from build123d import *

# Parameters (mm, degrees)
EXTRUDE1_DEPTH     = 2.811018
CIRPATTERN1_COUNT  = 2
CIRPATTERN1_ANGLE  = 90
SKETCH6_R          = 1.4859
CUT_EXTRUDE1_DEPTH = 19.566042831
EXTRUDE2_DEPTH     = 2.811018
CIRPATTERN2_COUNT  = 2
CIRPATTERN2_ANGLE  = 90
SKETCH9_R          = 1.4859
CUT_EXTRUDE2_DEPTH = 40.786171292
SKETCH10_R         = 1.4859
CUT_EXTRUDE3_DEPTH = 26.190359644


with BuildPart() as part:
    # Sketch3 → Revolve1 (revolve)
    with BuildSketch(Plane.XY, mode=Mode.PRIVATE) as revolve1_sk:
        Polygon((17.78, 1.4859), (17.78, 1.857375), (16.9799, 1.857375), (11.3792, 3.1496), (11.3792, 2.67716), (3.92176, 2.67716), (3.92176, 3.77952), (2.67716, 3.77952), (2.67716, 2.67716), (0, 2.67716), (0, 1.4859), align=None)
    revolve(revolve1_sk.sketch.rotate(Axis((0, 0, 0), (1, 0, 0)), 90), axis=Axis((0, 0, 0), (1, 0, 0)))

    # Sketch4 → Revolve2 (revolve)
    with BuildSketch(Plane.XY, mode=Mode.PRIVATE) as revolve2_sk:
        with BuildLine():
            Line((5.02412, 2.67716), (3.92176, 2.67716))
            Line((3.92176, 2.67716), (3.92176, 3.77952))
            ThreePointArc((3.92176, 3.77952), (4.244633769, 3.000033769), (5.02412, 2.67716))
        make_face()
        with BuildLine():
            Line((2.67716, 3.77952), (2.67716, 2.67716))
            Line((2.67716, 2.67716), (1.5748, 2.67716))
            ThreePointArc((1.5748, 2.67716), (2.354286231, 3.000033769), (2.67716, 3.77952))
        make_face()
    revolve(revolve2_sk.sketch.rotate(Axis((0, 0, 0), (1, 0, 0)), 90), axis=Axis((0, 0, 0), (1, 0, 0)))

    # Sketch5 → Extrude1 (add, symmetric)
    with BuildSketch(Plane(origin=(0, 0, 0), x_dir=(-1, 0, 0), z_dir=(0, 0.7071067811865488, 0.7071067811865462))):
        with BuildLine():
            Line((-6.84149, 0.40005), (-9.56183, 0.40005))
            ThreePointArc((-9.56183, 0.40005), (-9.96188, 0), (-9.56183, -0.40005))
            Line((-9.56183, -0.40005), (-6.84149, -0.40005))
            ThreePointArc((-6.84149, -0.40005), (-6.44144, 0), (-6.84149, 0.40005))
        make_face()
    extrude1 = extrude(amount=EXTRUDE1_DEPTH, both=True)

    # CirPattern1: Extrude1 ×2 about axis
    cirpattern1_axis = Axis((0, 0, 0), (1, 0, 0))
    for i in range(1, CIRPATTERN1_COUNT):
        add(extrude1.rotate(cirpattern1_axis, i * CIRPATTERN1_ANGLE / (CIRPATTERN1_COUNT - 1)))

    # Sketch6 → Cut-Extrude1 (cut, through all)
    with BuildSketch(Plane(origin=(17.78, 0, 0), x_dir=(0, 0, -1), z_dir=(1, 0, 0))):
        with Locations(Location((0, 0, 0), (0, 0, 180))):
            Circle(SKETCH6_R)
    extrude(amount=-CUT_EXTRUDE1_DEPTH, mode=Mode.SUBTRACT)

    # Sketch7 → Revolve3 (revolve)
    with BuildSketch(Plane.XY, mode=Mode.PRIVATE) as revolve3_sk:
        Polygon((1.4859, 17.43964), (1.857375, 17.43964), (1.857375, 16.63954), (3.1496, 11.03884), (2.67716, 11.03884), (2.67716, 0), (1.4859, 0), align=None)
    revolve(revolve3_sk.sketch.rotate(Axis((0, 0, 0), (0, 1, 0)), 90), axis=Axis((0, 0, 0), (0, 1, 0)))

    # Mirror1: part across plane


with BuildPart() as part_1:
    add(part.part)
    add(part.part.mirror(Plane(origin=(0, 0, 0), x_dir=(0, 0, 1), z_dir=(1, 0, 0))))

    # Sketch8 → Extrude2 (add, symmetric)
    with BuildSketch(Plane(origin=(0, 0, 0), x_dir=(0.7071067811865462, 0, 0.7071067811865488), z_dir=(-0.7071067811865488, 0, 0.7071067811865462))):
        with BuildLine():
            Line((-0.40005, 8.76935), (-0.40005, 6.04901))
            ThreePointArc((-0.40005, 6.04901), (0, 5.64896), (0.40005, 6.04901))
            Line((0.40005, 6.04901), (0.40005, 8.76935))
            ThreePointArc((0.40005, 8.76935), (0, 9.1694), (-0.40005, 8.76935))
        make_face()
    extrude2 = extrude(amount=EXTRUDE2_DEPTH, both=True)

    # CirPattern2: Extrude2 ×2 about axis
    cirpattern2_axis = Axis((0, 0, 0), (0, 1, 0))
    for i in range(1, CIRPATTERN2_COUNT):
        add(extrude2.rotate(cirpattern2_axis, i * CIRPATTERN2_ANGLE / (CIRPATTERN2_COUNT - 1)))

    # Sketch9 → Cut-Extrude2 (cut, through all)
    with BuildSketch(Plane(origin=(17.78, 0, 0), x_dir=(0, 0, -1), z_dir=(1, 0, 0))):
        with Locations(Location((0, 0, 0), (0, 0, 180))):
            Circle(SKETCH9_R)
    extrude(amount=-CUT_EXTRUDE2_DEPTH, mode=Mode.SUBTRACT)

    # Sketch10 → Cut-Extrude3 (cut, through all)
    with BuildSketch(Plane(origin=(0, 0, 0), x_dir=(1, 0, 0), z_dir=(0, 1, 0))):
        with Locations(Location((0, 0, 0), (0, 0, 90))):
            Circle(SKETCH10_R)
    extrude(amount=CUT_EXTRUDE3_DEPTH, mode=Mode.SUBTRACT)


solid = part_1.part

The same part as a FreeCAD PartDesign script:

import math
import FreeCAD as App
import Part
import Sketcher
Q = App.Units.Quantity

doc = App.newDocument("Part")
body = doc.addObject("PartDesign::Body", "Body")

# Sketch on XY plane
sketch1 = doc.addObject("Sketcher::SketchObject", "Sketch")
body.addObject(sketch1)
sketch1.AttachmentSupport = (doc.XY_Plane, [""])
sketch1.MapMode = "FlatFace"
sketch1.addGeometry([
    Part.LineSegment(App.Vector(17.78, 1.4859, 0), App.Vector(17.78, 1.857375, 0)),  # 0
    Part.LineSegment(App.Vector(17.78, 1.857375, 0), App.Vector(16.9799, 1.857375, 0)),  # 1
    Part.LineSegment(App.Vector(16.9799, 1.857375, 0), App.Vector(11.3792, 3.1496, 0)),  # 2
    Part.LineSegment(App.Vector(11.3792, 3.1496, 0), App.Vector(11.3792, 2.67716, 0)),  # 3
    Part.LineSegment(App.Vector(11.3792, 2.67716, 0), App.Vector(3.92176, 2.67716, 0)),  # 4
    Part.LineSegment(App.Vector(3.92176, 2.67716, 0), App.Vector(3.92176, 3.77952, 0)),  # 5
    Part.LineSegment(App.Vector(3.92176, 3.77952, 0), App.Vector(2.67716, 3.77952, 0)),  # 6
    Part.LineSegment(App.Vector(2.67716, 3.77952, 0), App.Vector(2.67716, 2.67716, 0)),  # 7
    Part.LineSegment(App.Vector(2.67716, 2.67716, 0), App.Vector(0, 2.67716, 0)),  # 8
    Part.LineSegment(App.Vector(0, 2.67716, 0), App.Vector(0, 1.4859, 0)),  # 9
    Part.LineSegment(App.Vector(0, 1.4859, 0), App.Vector(17.78, 1.4859, 0)),  # 10
], False)
sketch1.addConstraint([
    Sketcher.Constraint("Coincident", 0, 2, 1, 1),
    Sketcher.Constraint("Coincident", 1, 2, 2, 1),
    Sketcher.Constraint("Coincident", 2, 2, 3, 1),
    Sketcher.Constraint("Coincident", 3, 2, 4, 1),
    Sketcher.Constraint("Coincident", 4, 2, 5, 1),
    Sketcher.Constraint("Coincident", 5, 2, 6, 1),
    Sketcher.Constraint("Coincident", 6, 2, 7, 1),
    Sketcher.Constraint("Coincident", 7, 2, 8, 1),
    Sketcher.Constraint("Coincident", 8, 2, 9, 1),
    Sketcher.Constraint("Coincident", 9, 2, 10, 1),
    Sketcher.Constraint("Coincident", 10, 2, 0, 1),
    Sketcher.Constraint("Vertical", 0),
    Sketcher.Constraint("Horizontal", 1),
    Sketcher.Constraint("Vertical", 3),
    Sketcher.Constraint("Horizontal", 4),
    Sketcher.Constraint("Vertical", 5),
    Sketcher.Constraint("Horizontal", 6),
    Sketcher.Constraint("Vertical", 7),
    Sketcher.Constraint("Horizontal", 8),
    Sketcher.Constraint("Vertical", 9),
    Sketcher.Constraint("Horizontal", 10),
    Sketcher.Constraint("PointOnObject", 8, 2, -2),
    Sketcher.Constraint("Horizontal", 4, 2, 7, 2),
    Sketcher.Constraint("DistanceX", 10, 1, 10, 2, Q("0.7 in")),
    Sketcher.Constraint("DistanceX", 6, 2, 6, 1, Q("0.049 in")),
    Sketcher.Constraint("DistanceX", 1, 2, 1, 1, Q("0.0315 in")),
    Sketcher.Constraint("DistanceX", 4, 2, 4, 1, Q("0.2936 in")),
    Sketcher.Constraint("DistanceX", 8, 2, 8, 1, Q("0.1054 in")),
    Sketcher.Constraint("DistanceY", 3, 2, 3, 1, Q("0.0186 in")),
    Sketcher.Constraint("DistanceY", 5, 1, 5, 2, Q("0.0434 in")),
    Sketcher.Constraint("DistanceY", 9, 2, 9, 1, Q("0.0469 in")),
    Sketcher.Constraint("DistanceY", -1, 1, 2, 2, Q("0.124 in")),
    Sketcher.Constraint("Distance", 2, Q("5.747842 mm")),
])
revolution = doc.addObject("PartDesign::Revolution", "Revolution")
body.addObject(revolution)
revolution.Profile = sketch1
revolution.ReferenceAxis = (sketch1, ["H_Axis"])
revolution.Angle = 360

# Sketch on XY plane
sketch2 = doc.addObject("Sketcher::SketchObject", "Sketch001")
body.addObject(sketch2)
sketch2.AttachmentSupport = (doc.XY_Plane, [""])
sketch2.MapMode = "FlatFace"
sketch2.addGeometry([
    Part.LineSegment(App.Vector(3.92176, 2.67716, 0), App.Vector(5.02412, 2.67716, 0)),  # 0
    Part.ArcOfCircle(Part.Circle(App.Vector(5.02412, 3.77952, 0), App.Vector(0, 0, 1), 1.10236), math.radians(-180), math.radians(-90)),  # 1
    Part.LineSegment(App.Vector(3.92176, 3.77952, 0), App.Vector(3.92176, 2.67716, 0)),  # 2
    Part.LineSegment(App.Vector(2.67716, 2.67716, 0), App.Vector(2.67716, 3.77952, 0)),  # 3
    Part.ArcOfCircle(Part.Circle(App.Vector(1.5748, 3.77952, 0), App.Vector(0, 0, 1), 1.10236), math.radians(-90), math.radians(0)),  # 4
    Part.LineSegment(App.Vector(1.5748, 2.67716, 0), App.Vector(2.67716, 2.67716, 0)),  # 5
], False)
sketch2.addConstraint([
    Sketcher.Constraint("Tangent", 0, 2, 1, 2),
    Sketcher.Constraint("Tangent", 1, 1, 2, 1),
    Sketcher.Constraint("Coincident", 2, 2, 0, 1),
    Sketcher.Constraint("Tangent", 3, 2, 4, 2),
    Sketcher.Constraint("Tangent", 4, 1, 5, 1),
    Sketcher.Constraint("Coincident", 5, 2, 3, 1),
    Sketcher.Constraint("Horizontal", 0),
    Sketcher.Constraint("Vertical", 2),
    Sketcher.Constraint("Vertical", 3),
    Sketcher.Constraint("Horizontal", 5),
    Sketcher.Constraint("Equal", 1, 4),
    Sketcher.Constraint("Horizontal", 1, 3, 4, 3),
    Sketcher.Constraint("Radius", 1, Q("0.0434 in")),
    Sketcher.Constraint("DistanceX", -1, 1, 4, 3, Q("0.062 in")),
    Sketcher.Constraint("DistanceX", 3, 2, 1, 1, Q("0.049 in")),
    Sketcher.Constraint("DistanceY", -1, 1, 1, 3, Q("0.1488 in")),
])
revolution2 = doc.addObject("PartDesign::Revolution", "Revolution001")
body.addObject(revolution2)
revolution2.Profile = sketch2
revolution2.ReferenceAxis = (sketch2, ["H_Axis"])
revolution2.Angle = 360

# Sketch on an angled plane
sketch3 = doc.addObject("Sketcher::SketchObject", "Sketch002")
body.addObject(sketch3)
sketch3.Placement = App.Placement(App.Vector(0, 0, 0), App.Rotation(App.Vector(-1, 0, 0), App.Vector(0, -0.707106781, 0.707106781), App.Vector(0, 0.707106781, 0.707106781), "ZXY"))
sketch3.addGeometry([
    Part.LineSegment(App.Vector(-6.84149, 0.40005, 0), App.Vector(-9.56183, 0.40005, 0)),
    Part.ArcOfCircle(Part.Circle(App.Vector(-9.56183, 0, 0), App.Vector(0, 0, 1), 0.40005), math.radians(90), math.radians(270)),
    Part.LineSegment(App.Vector(-9.56183, -0.40005, 0), App.Vector(-6.84149, -0.40005, 0)),
    Part.ArcOfCircle(Part.Circle(App.Vector(-6.84149, 0, 0), App.Vector(0, 0, 1), 0.40005), math.radians(-90), math.radians(90)),
], False)
sketch3.addConstraint([
    Sketcher.Constraint("Tangent", 0, 2, 1, 1),
    Sketcher.Constraint("Tangent", 1, 2, 2, 1),
    Sketcher.Constraint("Tangent", 2, 2, 3, 1),
    Sketcher.Constraint("Tangent", 3, 2, 0, 1),
    Sketcher.Constraint("Horizontal", 0),
    Sketcher.Constraint("Horizontal", 2),
    Sketcher.Constraint("PointOnObject", 1, 3, -1),
    Sketcher.Constraint("DistanceX", 0, 2, 0, 1, Q("0.1071 in")),
    Sketcher.Constraint("Radius", 1, Q("0.40005 mm")),
    Sketcher.Constraint("DistanceX", 1, 3, -1, 1, Q("9.56183 mm")),
])
pad1 = doc.addObject("PartDesign::Pad", "Pad")
body.addObject(pad1)
pad1.Profile = sketch3
pad1.Length = 5.622036
pad1.Midplane = True
doc.recompute()

polarpattern = doc.addObject("PartDesign::PolarPattern", "PolarPattern")
body.addObject(polarpattern)
polarpattern.Originals = [pad1]
polarpattern.Axis = (doc.X_Axis, [""])
polarpattern.Angle = 90
polarpattern.Occurrences = 2
body.Tip = polarpattern

# Sketch on YZ plane
sketch4 = doc.addObject("Sketcher::SketchObject", "Sketch003")
body.addObject(sketch4)
sketch4.AttachmentSupport = (doc.YZ_Plane, [""])
sketch4.MapMode = "FlatFace"
sketch4.AttachmentOffset = App.Placement(App.Vector(0, 0, 0.7 * 25.4), App.Rotation())
sketch4.addGeometry(Part.Circle(App.Vector(0, 0, 0), App.Vector(0, 0, 1), 1.4859), False)
sketch4.addConstraint([
    Sketcher.Constraint("Coincident", 0, 3, -1, 1),
    Sketcher.Constraint("Diameter", 0, Q("0.117 in")),
])
pocket1 = doc.addObject("PartDesign::Pocket", "Pocket")
body.addObject(pocket1)
pocket1.Profile = sketch4
pocket1.Type = "ThroughAll"

# Sketch on XY plane
sketch5 = doc.addObject("Sketcher::SketchObject", "Sketch004")
body.addObject(sketch5)
sketch5.AttachmentSupport = (doc.XY_Plane, [""])
sketch5.MapMode = "FlatFace"
sketch5.addGeometry([
    Part.LineSegment(App.Vector(1.857375, 17.43964, 0), App.Vector(1.4859, 17.43964, 0)),  # 0
    Part.LineSegment(App.Vector(1.4859, 17.43964, 0), App.Vector(1.4859, 0, 0)),  # 1
    Part.LineSegment(App.Vector(1.4859, 0, 0), App.Vector(2.67716, 0, 0)),  # 2
    Part.LineSegment(App.Vector(2.67716, 0, 0), App.Vector(2.67716, 11.03884, 0)),  # 3
    Part.LineSegment(App.Vector(2.67716, 11.03884, 0), App.Vector(3.1496, 11.03884, 0)),  # 4
    Part.LineSegment(App.Vector(3.1496, 11.03884, 0), App.Vector(1.857375, 16.63954, 0)),  # 5
    Part.LineSegment(App.Vector(1.857375, 16.63954, 0), App.Vector(1.857375, 17.43964, 0)),  # 6
], False)
sketch5.addConstraint([
    Sketcher.Constraint("Coincident", 0, 2, 1, 1),
    Sketcher.Constraint("Coincident", 1, 2, 2, 1),
    Sketcher.Constraint("Coincident", 2, 2, 3, 1),
    Sketcher.Constraint("Coincident", 3, 2, 4, 1),
    Sketcher.Constraint("Coincident", 4, 2, 5, 1),
    Sketcher.Constraint("Coincident", 5, 2, 6, 1),
    Sketcher.Constraint("Coincident", 6, 2, 0, 1),
    Sketcher.Constraint("Horizontal", 0),
    Sketcher.Constraint("Vertical", 1),
    Sketcher.Constraint("Horizontal", 2),
    Sketcher.Constraint("Vertical", 3),
    Sketcher.Constraint("Horizontal", 4),
    Sketcher.Constraint("Vertical", 6),
    Sketcher.Constraint("PointOnObject", 1, 2, -1),
    Sketcher.Constraint("DistanceX", 2, 1, 2, 2, Q("0.0469 in")),
    Sketcher.Constraint("DistanceX", 4, 1, 4, 2, Q("0.0186 in")),
    Sketcher.Constraint("DistanceY", 1, 2, 1, 1, Q("0.6866 in")),
    Sketcher.Constraint("DistanceY", 3, 1, 3, 2, Q("0.4346 in")),
    Sketcher.Constraint("DistanceY", 6, 1, 6, 2, Q("0.0315 in")),
    Sketcher.Constraint("DistanceX", -1, 1, 4, 2, Q("0.124 in")),
    Sketcher.Constraint("Distance", 5, Q("5.747842 mm")),
])
revolution3 = doc.addObject("PartDesign::Revolution", "Revolution002")
body.addObject(revolution3)
revolution3.Profile = sketch5
revolution3.ReferenceAxis = (sketch5, ["V_Axis"])
revolution3.Angle = 360
body2 = doc.addObject("PartDesign::Body", "Body001")
doc.recompute()

body2.BaseFeature = body
doc.recompute()

mirroring = doc.addObject("Part::Mirroring", "Mirroring")
mirroring.Source = body
mirroring.Base = App.Vector(0, 0, 0)
mirroring.Normal = App.Vector(1, 0, 0)
body3 = doc.addObject("PartDesign::Body", "Body002")
body3.BaseFeature = mirroring
boolean = doc.addObject("PartDesign::Boolean", "Boolean")
body2.addObject(boolean)
boolean.Type = "Fuse"
boolean.addObjects([body3])
doc.recompute()

# Sketch on an angled plane
sketch6 = doc.addObject("Sketcher::SketchObject", "Sketch005")
body2.addObject(sketch6)
sketch6.Placement = App.Placement(App.Vector(0, 0, 0), App.Rotation(App.Vector(0.707106781, 0, 0.707106781), App.Vector(0, 0.999999999, 0), App.Vector(-0.707106781, 0, 0.707106781), "ZXY"))
sketch6.addGeometry([
    Part.LineSegment(App.Vector(-0.40005, 8.76935, 0), App.Vector(-0.40005, 6.04901, 0)),
    Part.ArcOfCircle(Part.Circle(App.Vector(0, 6.04901, 0), App.Vector(0, 0, 1), 0.40005), math.radians(180), math.radians(360)),
    Part.LineSegment(App.Vector(0.40005, 6.04901, 0), App.Vector(0.40005, 8.76935, 0)),
    Part.ArcOfCircle(Part.Circle(App.Vector(0, 8.76935, 0), App.Vector(0, 0, 1), 0.40005), math.radians(0), math.radians(180)),
], False)
sketch6.addConstraint([
    Sketcher.Constraint("Tangent", 0, 2, 1, 1),
    Sketcher.Constraint("Tangent", 1, 2, 2, 1),
    Sketcher.Constraint("Tangent", 2, 2, 3, 1),
    Sketcher.Constraint("Tangent", 3, 2, 0, 1),
    Sketcher.Constraint("Vertical", 0),
    Sketcher.Constraint("Vertical", 2),
    Sketcher.Constraint("PointOnObject", 1, 3, -2),
    Sketcher.Constraint("DistanceY", 0, 2, 0, 1, Q("0.1071 in")),
    Sketcher.Constraint("Radius", 1, Q("0.40005 mm")),
    Sketcher.Constraint("DistanceY", -1, 1, 1, 3, Q("6.04901 mm")),
])
pad2 = doc.addObject("PartDesign::Pad", "Pad001")
body2.addObject(pad2)
pad2.Profile = sketch6
pad2.Length = 5.622036
pad2.Midplane = True
doc.recompute()

polarpattern2 = doc.addObject("PartDesign::PolarPattern", "PolarPattern001")
body2.addObject(polarpattern2)
polarpattern2.Originals = [pad2]
polarpattern2.Axis = (doc.getObject("Y_Axis001"), [""])
polarpattern2.Angle = 90
polarpattern2.Occurrences = 2
body2.Tip = polarpattern2

# Sketch on YZ plane
sketch7 = doc.addObject("Sketcher::SketchObject", "Sketch006")
body2.addObject(sketch7)
sketch7.AttachmentSupport = (doc.getObject("YZ_Plane001"), [""])
sketch7.MapMode = "FlatFace"
sketch7.AttachmentOffset = App.Placement(App.Vector(0, 0, 0.7 * 25.4), App.Rotation())
sketch7.addGeometry(Part.Circle(App.Vector(0, 0, 0), App.Vector(0, 0, 1), 1.4859), False)
sketch7.addConstraint([
    Sketcher.Constraint("Coincident", 0, 3, -1, 1),
    Sketcher.Constraint("Diameter", 0, Q("0.117 in")),
])
pocket2 = doc.addObject("PartDesign::Pocket", "Pocket001")
body2.addObject(pocket2)
pocket2.Profile = sketch7
pocket2.Type = "ThroughAll"

# Sketch on XZ plane
sketch8 = doc.addObject("Sketcher::SketchObject", "Sketch007")
body2.addObject(sketch8)
sketch8.AttachmentSupport = (doc.getObject("XZ_Plane001"), [""])
sketch8.MapMode = "FlatFace"
sketch8.addGeometry(Part.Circle(App.Vector(0, 0, 0), App.Vector(0, 0, 1), 1.4859), False)
sketch8.addConstraint([
    Sketcher.Constraint("Coincident", 0, 3, -1, 1),
    Sketcher.Constraint("Diameter", 0, Q("0.117 in")),
])
pocket3 = doc.addObject("PartDesign::Pocket", "Pocket002")
body2.addObject(pocket3)
pocket3.Profile = sketch8
pocket3.Type = "ThroughAll"
mirroring.Visibility = False

doc.recompute()
